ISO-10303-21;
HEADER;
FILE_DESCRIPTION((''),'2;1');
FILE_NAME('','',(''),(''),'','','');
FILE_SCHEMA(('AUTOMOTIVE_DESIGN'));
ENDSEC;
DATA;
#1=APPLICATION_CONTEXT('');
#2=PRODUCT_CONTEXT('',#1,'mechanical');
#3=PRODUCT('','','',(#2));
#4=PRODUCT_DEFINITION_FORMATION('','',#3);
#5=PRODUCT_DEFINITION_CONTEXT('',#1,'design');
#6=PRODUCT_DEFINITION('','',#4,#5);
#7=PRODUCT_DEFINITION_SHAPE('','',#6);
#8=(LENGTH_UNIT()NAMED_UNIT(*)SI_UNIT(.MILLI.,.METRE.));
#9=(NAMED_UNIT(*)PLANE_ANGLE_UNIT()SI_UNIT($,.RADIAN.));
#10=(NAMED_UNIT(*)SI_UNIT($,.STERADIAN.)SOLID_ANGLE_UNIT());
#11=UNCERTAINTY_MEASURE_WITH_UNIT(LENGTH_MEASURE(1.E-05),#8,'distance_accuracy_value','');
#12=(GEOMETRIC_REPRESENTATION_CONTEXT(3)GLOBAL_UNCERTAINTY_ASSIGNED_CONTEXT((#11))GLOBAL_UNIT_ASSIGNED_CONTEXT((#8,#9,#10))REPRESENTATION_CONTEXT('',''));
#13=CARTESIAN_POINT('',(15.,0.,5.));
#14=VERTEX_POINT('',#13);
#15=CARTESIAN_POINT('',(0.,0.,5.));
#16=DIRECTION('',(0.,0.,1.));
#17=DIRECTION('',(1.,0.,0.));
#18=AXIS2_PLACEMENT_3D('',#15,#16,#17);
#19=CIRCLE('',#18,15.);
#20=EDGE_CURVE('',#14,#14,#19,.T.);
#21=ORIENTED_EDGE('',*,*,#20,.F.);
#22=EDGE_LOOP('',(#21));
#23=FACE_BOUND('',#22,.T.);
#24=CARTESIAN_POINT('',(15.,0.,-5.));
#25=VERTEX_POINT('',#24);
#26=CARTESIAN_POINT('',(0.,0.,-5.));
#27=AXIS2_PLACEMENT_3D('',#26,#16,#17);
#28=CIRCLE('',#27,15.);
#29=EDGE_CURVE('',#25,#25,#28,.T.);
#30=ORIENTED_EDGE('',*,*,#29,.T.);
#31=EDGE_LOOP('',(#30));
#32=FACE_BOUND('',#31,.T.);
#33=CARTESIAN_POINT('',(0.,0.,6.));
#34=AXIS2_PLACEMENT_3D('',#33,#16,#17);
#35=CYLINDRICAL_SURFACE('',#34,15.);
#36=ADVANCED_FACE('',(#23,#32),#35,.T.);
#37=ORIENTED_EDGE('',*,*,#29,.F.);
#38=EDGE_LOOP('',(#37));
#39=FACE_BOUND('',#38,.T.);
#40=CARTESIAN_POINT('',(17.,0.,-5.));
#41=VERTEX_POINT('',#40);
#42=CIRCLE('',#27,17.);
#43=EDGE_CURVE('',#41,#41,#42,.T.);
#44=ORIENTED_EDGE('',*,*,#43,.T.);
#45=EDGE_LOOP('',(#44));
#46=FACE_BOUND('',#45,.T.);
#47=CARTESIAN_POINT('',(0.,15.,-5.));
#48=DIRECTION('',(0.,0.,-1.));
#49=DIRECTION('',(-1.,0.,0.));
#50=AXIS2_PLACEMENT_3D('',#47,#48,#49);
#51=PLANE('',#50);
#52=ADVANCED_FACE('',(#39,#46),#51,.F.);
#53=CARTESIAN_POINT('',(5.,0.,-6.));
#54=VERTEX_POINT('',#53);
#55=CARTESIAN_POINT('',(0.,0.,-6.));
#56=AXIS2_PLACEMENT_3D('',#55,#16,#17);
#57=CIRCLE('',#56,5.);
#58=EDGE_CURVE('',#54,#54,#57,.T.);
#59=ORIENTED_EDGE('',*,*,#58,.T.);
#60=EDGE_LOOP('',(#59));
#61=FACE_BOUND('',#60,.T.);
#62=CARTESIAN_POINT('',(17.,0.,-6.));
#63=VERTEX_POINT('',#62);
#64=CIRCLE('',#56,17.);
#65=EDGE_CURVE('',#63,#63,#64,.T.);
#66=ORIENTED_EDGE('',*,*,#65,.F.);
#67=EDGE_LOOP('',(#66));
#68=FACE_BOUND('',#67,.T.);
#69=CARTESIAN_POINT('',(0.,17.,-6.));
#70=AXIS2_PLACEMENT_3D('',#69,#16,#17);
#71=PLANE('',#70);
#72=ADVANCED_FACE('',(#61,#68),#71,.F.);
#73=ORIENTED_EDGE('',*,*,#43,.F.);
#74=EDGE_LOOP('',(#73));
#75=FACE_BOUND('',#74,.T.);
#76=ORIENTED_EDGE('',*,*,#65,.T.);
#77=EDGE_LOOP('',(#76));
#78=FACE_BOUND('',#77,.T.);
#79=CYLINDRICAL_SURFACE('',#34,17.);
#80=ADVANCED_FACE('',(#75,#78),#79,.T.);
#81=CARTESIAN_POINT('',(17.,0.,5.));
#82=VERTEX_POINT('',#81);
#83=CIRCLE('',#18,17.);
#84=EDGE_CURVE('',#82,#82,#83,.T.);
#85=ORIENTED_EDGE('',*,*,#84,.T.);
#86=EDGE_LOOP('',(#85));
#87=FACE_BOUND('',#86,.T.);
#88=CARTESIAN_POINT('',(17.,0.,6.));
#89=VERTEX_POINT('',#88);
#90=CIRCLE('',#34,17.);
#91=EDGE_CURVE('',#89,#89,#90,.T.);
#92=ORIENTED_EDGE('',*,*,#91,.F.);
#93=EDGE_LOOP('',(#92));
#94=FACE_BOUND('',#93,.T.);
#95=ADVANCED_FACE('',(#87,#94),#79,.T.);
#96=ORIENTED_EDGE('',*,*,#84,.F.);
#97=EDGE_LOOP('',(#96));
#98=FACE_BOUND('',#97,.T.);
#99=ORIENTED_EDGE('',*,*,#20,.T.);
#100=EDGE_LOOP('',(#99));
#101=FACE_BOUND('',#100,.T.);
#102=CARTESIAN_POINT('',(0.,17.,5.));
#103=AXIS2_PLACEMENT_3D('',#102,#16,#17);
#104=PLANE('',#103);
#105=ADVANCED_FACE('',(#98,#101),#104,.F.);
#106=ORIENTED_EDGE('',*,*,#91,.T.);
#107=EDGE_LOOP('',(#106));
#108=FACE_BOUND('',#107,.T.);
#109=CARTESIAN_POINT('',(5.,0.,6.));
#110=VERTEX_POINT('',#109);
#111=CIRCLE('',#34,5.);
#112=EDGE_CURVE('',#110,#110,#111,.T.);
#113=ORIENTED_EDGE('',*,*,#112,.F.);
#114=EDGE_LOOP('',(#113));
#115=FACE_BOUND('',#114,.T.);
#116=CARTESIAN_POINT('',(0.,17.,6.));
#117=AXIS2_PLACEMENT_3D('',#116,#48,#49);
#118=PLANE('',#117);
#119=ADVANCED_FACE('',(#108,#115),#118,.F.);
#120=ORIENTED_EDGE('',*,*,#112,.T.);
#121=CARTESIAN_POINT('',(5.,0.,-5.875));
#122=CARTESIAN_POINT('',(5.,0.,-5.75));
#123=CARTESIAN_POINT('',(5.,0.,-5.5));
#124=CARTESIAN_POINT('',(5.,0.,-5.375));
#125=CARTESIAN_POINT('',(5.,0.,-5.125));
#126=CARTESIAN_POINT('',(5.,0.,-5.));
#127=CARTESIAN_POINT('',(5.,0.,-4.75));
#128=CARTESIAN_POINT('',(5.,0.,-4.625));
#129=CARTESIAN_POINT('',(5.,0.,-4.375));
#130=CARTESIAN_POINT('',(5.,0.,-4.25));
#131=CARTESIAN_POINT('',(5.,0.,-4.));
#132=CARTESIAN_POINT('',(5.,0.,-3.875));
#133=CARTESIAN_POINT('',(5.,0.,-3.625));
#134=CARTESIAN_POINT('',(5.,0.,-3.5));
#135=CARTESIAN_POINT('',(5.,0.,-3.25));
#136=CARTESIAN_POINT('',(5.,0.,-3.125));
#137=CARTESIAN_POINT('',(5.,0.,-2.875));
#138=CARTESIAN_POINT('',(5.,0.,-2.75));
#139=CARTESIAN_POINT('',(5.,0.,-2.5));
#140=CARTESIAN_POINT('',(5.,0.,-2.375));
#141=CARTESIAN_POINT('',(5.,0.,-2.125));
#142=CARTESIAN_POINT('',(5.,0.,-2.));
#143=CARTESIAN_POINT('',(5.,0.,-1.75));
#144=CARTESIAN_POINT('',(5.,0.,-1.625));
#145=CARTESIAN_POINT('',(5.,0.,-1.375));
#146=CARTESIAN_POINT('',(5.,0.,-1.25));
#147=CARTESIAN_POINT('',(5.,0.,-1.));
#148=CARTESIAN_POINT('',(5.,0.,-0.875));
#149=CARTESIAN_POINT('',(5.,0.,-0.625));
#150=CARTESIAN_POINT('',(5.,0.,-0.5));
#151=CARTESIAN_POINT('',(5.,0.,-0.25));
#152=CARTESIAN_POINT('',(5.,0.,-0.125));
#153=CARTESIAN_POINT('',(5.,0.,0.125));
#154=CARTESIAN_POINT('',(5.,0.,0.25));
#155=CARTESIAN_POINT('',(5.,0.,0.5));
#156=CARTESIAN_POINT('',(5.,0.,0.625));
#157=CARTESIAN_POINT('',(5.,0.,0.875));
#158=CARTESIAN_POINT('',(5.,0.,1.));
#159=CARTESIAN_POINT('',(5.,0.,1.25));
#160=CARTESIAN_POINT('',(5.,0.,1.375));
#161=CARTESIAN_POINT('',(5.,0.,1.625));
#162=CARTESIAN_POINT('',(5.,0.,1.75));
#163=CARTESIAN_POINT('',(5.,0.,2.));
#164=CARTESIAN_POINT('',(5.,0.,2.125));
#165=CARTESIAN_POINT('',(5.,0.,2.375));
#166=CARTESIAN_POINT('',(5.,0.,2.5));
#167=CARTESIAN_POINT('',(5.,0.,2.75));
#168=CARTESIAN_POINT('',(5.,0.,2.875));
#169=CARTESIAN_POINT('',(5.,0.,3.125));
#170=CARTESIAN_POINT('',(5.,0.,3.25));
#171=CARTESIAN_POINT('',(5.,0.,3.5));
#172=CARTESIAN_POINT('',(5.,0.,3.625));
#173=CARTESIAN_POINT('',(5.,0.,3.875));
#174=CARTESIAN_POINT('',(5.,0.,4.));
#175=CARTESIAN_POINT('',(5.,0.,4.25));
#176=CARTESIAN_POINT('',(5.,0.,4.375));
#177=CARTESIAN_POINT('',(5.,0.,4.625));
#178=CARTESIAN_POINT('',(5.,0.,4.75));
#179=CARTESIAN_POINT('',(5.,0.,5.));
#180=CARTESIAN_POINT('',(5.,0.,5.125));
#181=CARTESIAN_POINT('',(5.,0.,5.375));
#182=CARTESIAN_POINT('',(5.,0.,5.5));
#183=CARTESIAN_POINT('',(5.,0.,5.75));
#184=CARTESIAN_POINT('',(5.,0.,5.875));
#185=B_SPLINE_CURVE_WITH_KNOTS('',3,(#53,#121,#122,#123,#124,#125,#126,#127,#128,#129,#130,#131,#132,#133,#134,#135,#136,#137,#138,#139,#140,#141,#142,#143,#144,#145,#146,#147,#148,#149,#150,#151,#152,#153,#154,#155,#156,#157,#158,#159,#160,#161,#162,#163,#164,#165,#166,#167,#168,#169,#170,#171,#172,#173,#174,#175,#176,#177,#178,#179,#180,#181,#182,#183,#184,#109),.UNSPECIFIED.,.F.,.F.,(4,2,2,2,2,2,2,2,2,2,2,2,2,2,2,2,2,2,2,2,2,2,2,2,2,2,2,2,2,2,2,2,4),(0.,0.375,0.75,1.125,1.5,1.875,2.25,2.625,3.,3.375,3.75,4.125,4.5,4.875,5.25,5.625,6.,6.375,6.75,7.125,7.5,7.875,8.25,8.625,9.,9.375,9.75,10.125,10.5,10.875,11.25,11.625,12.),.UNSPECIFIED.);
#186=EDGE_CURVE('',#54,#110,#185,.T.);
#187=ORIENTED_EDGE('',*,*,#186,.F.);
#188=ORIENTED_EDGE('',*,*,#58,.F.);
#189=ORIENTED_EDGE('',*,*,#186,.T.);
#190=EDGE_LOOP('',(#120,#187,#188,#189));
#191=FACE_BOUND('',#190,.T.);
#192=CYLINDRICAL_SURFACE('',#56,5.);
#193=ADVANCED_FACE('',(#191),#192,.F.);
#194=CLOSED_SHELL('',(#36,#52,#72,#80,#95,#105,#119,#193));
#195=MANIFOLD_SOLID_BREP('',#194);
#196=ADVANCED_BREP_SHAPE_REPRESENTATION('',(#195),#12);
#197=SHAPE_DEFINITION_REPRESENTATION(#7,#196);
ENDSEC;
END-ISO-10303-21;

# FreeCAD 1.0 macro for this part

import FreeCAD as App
import Part
import Sketcher
from FreeCAD import Vector
Q = App.Units.Quantity

doc = App.newDocument("Part")
body = doc.addObject("PartDesign::Body", "Body")

sketch1 = doc.addObject("Sketcher::SketchObject", "Sketch")
body.addObject(sketch1)
sketch1.AttachmentSupport = (doc.YZ_Plane, [""])
sketch1.MapMode = "FlatFace"
sketch1.addGeometry([
    Part.LineSegment(Vector(15, 5, 0), Vector(17, 5, 0)),
    Part.LineSegment(Vector(17, 5, 0), Vector(17, 6, 0)),
    Part.LineSegment(Vector(17, 6, 0), Vector(0, 6, 0)),
    Part.LineSegment(Vector(0, 6, 0), Vector(0, -6, 0)),
    Part.LineSegment(Vector(0, -6, 0), Vector(17, -6, 0)),
    Part.LineSegment(Vector(17, -6, 0), Vector(17, -5, 0)),
    Part.LineSegment(Vector(17, -5, 0), Vector(15, -5, 0)),
    Part.LineSegment(Vector(15, -5, 0), Vector(15, 5, 0)),
], False)
sketch1.addConstraint([
    Sketcher.Constraint("Coincident", 0, 2, 1, 1),
    Sketcher.Constraint("Coincident", 1, 2, 2, 1),
    Sketcher.Constraint("Coincident", 2, 2, 3, 1),
    Sketcher.Constraint("Coincident", 3, 2, 4, 1),
    Sketcher.Constraint("Coincident", 4, 2, 5, 1),
    Sketcher.Constraint("Coincident", 5, 2, 6, 1),
    Sketcher.Constraint("Coincident", 6, 2, 7, 1),
    Sketcher.Constraint("Coincident", 7, 2, 0, 1),
    Sketcher.Constraint("Horizontal", 0),
    Sketcher.Constraint("Vertical", 1),
    Sketcher.Constraint("Horizontal", 2),
    Sketcher.Constraint("Vertical", 3),
    Sketcher.Constraint("Horizontal", 4),
    Sketcher.Constraint("Vertical", 5),
    Sketcher.Constraint("Horizontal", 6),
    Sketcher.Constraint("Vertical", 7),
    Sketcher.Constraint("Symmetric", 2, 2, 3, 2, -1, 1),
    Sketcher.Constraint("Symmetric", 0, 2, 5, 2, -1),
    Sketcher.Constraint("DistanceX", 0, 1, 0, 2, Q("2 mm")),
    Sketcher.Constraint("DistanceX", 2, 2, 2, 1, Q("17 mm")),
    Sketcher.Constraint("DistanceY", 1, 1, 1, 2, Q("1 mm")),
    Sketcher.Constraint("DistanceY", 3, 2, 3, 1, Q("12 mm")),
])
revolution = doc.addObject("PartDesign::Revolution", "Revolution")
body.addObject(revolution)
revolution.Profile = sketch1
revolution.ReferenceAxis = (sketch1, ["V_Axis"])
revolution.Angle = 360

sketch2 = doc.addObject("Sketcher::SketchObject", "Sketch001")
body.addObject(sketch2)
sketch2.AttachmentSupport = (doc.XY_Plane, [""])
sketch2.MapMode = "FlatFace"
sketch2.addGeometry(Part.Circle(Vector(0, 0, 0), Vector(0, 0, 1), 5), False)
sketch2.addConstraint([
    Sketcher.Constraint("Coincident", 0, 3, -1, 1),
    Sketcher.Constraint("Diameter", 0, Q("10 mm")),
])
pocket1 = doc.addObject("PartDesign::Pocket", "Pocket")
body.addObject(pocket1)
pocket1.Profile = sketch2
pocket1.Type = "ThroughAll"
pocket1.Midplane = True

doc.recompute()
